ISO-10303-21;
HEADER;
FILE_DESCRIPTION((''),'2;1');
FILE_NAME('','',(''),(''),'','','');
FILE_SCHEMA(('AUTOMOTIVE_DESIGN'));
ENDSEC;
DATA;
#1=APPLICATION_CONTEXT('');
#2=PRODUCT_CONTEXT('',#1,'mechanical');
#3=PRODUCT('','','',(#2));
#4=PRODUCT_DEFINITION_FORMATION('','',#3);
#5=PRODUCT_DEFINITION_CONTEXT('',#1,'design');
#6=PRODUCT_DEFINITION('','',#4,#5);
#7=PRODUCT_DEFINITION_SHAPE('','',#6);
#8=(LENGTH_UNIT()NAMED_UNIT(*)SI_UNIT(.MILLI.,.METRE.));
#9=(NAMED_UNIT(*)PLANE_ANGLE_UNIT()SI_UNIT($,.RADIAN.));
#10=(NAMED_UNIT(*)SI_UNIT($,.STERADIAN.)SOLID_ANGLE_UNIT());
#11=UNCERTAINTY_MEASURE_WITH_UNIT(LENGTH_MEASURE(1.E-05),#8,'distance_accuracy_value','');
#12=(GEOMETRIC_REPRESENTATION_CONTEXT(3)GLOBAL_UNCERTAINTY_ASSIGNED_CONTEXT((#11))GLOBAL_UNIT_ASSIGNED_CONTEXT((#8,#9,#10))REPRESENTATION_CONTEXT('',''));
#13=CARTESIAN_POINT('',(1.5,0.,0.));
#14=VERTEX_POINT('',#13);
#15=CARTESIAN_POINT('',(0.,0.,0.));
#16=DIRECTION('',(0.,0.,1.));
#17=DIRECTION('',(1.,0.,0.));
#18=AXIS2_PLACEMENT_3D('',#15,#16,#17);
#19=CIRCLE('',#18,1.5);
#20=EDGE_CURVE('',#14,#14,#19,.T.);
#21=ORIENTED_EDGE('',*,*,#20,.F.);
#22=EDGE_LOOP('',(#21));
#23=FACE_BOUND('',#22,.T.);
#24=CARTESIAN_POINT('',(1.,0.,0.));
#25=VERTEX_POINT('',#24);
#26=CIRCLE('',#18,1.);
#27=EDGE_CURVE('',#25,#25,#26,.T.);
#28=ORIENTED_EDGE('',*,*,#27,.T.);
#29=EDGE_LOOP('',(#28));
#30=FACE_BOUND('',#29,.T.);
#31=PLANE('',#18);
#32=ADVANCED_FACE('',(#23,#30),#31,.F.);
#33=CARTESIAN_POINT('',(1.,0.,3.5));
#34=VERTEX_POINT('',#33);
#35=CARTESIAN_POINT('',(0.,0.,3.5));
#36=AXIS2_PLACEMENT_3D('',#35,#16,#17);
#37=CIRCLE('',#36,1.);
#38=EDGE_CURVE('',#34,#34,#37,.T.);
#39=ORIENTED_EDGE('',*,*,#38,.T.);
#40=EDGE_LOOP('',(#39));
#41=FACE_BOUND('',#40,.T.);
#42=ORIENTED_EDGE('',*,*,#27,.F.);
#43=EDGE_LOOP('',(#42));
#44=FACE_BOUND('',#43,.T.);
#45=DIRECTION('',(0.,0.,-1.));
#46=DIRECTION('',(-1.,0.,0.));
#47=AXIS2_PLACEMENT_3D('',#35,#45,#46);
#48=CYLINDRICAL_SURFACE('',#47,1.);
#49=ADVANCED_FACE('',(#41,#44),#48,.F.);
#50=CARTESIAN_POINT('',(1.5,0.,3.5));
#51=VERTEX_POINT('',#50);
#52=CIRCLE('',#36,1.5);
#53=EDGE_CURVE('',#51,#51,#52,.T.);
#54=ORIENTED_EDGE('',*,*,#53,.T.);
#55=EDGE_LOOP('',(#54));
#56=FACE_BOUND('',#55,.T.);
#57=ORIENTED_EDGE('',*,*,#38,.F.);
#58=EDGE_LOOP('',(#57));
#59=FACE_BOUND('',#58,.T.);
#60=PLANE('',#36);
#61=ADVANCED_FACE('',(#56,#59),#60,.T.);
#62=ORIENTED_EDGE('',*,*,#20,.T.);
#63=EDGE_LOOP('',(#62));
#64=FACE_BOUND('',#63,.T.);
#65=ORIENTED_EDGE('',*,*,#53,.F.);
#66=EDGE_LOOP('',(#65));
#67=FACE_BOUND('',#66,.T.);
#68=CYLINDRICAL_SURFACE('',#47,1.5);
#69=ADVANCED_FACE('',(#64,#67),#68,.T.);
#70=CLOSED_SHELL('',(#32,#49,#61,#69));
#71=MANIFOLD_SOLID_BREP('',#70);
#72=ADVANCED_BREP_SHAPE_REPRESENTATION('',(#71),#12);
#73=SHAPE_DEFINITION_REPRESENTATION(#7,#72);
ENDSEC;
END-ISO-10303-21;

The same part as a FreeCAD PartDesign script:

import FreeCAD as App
import Part
import Sketcher
Q = App.Units.Quantity

doc = App.newDocument("Part")
params = doc.addObject("Spreadsheet::Sheet", "Params")
for row, (alias, value) in enumerate([
    ("sketch1_diameter", "3 mm"),
    ("sketch1_diameter2", "2 mm"),
    ("pad1_length", "3.5 mm"),
], start=1):
    params.set(f"A{row}", alias)
    params.set(f"B{row}", "=" + value)
    params.setAlias(f"B{row}", alias)

body = doc.addObject("PartDesign::Body", "Body")

# Sketch on XY plane
sketch1 = body.newObject("Sketcher::SketchObject", "Sketch")
sketch1.AttachmentSupport = (doc.getObject("XY_Plane"), [""])
sketch1.MapMode = "FlatFace"
sketch1.addGeometry([
    Part.Circle(App.Vector(0, 0, 0), App.Vector(0, 0, 1), 1.5),
    Part.Circle(App.Vector(0, 0, 0), App.Vector(0, 0, 1), 1),
], False)
sketch1.addConstraint([
    Sketcher.Constraint("Coincident", 0, 3, -1, 1),
    Sketcher.Constraint("Coincident", 1, 3, -1, 1),
    Sketcher.Constraint("Diameter", 0, Q("3 mm")),
    Sketcher.Constraint("Diameter", 1, Q("2 mm")),
])
sketch1.setExpression("Constraints[2]", "Params.sketch1_diameter")
sketch1.setExpression("Constraints[3]", "Params.sketch1_diameter2")
pad1 = body.newObject("PartDesign::Pad", "Pad")
pad1.Profile = sketch1
pad1.setExpression("Length", "Params.pad1_length")

doc.recompute()
